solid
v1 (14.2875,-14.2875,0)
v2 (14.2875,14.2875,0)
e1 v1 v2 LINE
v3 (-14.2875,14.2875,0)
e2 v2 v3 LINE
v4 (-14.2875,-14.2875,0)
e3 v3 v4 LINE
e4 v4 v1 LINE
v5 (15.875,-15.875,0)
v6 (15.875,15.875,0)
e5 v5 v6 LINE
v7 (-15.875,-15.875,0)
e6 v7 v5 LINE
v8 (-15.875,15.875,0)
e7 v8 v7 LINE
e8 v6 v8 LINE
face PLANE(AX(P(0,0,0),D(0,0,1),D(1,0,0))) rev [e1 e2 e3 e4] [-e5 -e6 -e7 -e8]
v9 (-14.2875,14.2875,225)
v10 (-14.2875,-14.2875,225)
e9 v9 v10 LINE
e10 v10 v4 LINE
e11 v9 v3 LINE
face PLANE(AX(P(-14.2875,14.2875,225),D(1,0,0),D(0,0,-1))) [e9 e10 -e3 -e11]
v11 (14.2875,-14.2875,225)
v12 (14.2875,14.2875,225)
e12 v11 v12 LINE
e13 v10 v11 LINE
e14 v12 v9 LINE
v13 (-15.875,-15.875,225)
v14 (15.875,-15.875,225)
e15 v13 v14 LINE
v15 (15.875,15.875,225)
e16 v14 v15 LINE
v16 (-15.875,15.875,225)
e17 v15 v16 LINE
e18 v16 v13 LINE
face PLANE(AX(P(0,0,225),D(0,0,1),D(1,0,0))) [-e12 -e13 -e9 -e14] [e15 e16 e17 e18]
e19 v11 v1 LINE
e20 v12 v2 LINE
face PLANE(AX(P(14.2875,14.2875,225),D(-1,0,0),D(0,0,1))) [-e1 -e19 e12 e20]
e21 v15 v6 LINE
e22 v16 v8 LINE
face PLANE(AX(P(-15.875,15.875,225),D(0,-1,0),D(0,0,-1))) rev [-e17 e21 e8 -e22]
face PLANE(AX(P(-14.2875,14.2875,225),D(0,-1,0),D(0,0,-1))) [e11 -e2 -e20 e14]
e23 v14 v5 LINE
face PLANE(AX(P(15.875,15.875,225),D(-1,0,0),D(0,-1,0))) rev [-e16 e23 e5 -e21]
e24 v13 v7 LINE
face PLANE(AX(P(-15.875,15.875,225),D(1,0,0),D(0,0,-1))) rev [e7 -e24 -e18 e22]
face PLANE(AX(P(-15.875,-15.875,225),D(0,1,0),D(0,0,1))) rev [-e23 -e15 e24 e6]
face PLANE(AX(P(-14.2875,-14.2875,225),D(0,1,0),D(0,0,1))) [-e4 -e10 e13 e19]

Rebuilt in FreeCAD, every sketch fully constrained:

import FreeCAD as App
import Part
import Sketcher
Q = App.Units.Quantity

doc = App.newDocument("Part")
body = doc.addObject("PartDesign::Body", "Body")

# Sketch on XY plane
sketch1 = body.newObject("Sketcher::SketchObject", "Sketch")
sketch1.AttachmentSupport = (doc.getObject("XY_Plane"), [""])
sketch1.MapMode = "FlatFace"
sketch1.addGeometry([
    Part.LineSegment(App.Vector(-15.875, 15.875, 0), App.Vector(-15.875, -15.875, 0)),  # 0
    Part.LineSegment(App.Vector(-15.875, -15.875, 0), App.Vector(15.875, -15.875, 0)),  # 1
    Part.LineSegment(App.Vector(15.875, -15.875, 0), App.Vector(15.875, 15.875, 0)),  # 2
    Part.LineSegment(App.Vector(15.875, 15.875, 0), App.Vector(-15.875, 15.875, 0)),  # 3
    Part.LineSegment(App.Vector(14.2875, -14.2875, 0), App.Vector(-14.2875, -14.2875, 0)),  # 4
    Part.LineSegment(App.Vector(-14.2875, -14.2875, 0), App.Vector(-14.2875, 14.2875, 0)),  # 5
    Part.LineSegment(App.Vector(-14.2875, 14.2875, 0), App.Vector(14.2875, 14.2875, 0)),  # 6
    Part.LineSegment(App.Vector(14.2875, 14.2875, 0), App.Vector(14.2875, -14.2875, 0)),  # 7
], False)
sketch1.addConstraint([
    Sketcher.Constraint("Coincident", 0, 2, 1, 1),
    Sketcher.Constraint("Coincident", 1, 2, 2, 1),
    Sketcher.Constraint("Coincident", 2, 2, 3, 1),
    Sketcher.Constraint("Coincident", 3, 2, 0, 1),
    Sketcher.Constraint("Coincident", 4, 2, 5, 1),
    Sketcher.Constraint("Coincident", 5, 2, 6, 1),
    Sketcher.Constraint("Coincident", 6, 2, 7, 1),
    Sketcher.Constraint("Coincident", 7, 2, 4, 1),
    Sketcher.Constraint("Vertical", 0),
    Sketcher.Constraint("Horizontal", 1),
    Sketcher.Constraint("Vertical", 2),
    Sketcher.Constraint("Horizontal", 3),
    Sketcher.Constraint("Horizontal", 4),
    Sketcher.Constraint("Vertical", 5),
    Sketcher.Constraint("Horizontal", 6),
    Sketcher.Constraint("Vertical", 7),
    Sketcher.Constraint("Symmetric", 0, 2, 2, 2, -1, 1),
    Sketcher.Constraint("Symmetric", 4, 2, 6, 2, -1, 1),
    Sketcher.Constraint("Equal", 3, 0),
    Sketcher.Constraint("Equal", 6, 5),
    Sketcher.Constraint("DistanceX", 1, 1, 1, 2, Q("1.25 in")),
    Sketcher.Constraint("DistanceX", 4, 2, 4, 1, Q("1.125 in")),
])
pad1 = body.newObject("PartDesign::Pad", "Pad")
pad1.Profile = sketch1
pad1.Length = 225

doc.recompute()
